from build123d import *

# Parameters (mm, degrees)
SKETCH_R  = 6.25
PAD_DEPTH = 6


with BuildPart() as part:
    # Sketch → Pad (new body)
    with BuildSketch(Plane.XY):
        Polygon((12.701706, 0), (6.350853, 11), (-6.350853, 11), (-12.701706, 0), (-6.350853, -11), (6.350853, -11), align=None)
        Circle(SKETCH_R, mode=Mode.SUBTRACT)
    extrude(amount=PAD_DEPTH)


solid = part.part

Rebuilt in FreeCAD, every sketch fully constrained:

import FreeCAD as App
import Part
import Sketcher

V = App.Vector
Q = App.Units.Quantity

doc = App.newDocument("Part")
params = doc.addObject("Spreadsheet::Sheet", "Params")
for row, (alias, value) in enumerate([
    ("sketch1_diameter", "12.5 mm"),
    ("pad1_length", "6 mm"),
], start=1):
    params.set(f"A{row}", alias)
    params.set(f"B{row}", "=" + value)
    params.setAlias(f"B{row}", alias)

body = doc.addObject("PartDesign::Body", "Body")

# Sketch on XY plane
sketch1 = body.newObject("Sketcher::SketchObject", "Sketch")
sketch1.AttachmentSupport = (doc.getObject("XY_Plane"), [""])
sketch1.MapMode = "FlatFace"
sketch1.addGeometry(Part.LineSegment(V(13, 0, 0), V(6, 11, 0)), False)
sketch1.addGeometry(Part.LineSegment(V(6, 11, 0), V(-6, 11, 0)), False)
sketch1.addGeometry(Part.LineSegment(V(-6, 11, 0), V(-13, 0, 0)), False)
sketch1.addGeometry(Part.LineSegment(V(-13, 0, 0), V(-6, -11, 0)), False)
sketch1.addGeometry(Part.LineSegment(V(-6, -11, 0), V(6, -11, 0)), False)
sketch1.addGeometry(Part.LineSegment(V(6, -11, 0), V(13, 0, 0)), False)
sketch1.addGeometry(Part.Circle(V(0, 0, 0), V(0, 0, 1), 6), False)
sketch1.addConstraint(Sketcher.Constraint("Coincident", 0, 2, 1, 1))
sketch1.addConstraint(Sketcher.Constraint("Coincident", 1, 2, 2, 1))
sketch1.addConstraint(Sketcher.Constraint("Coincident", 2, 2, 3, 1))
sketch1.addConstraint(Sketcher.Constraint("Coincident", 3, 2, 4, 1))
sketch1.addConstraint(Sketcher.Constraint("Coincident", 4, 2, 5, 1))
sketch1.addConstraint(Sketcher.Constraint("Coincident", 5, 2, 0, 1))
sketch1.addConstraint(Sketcher.Constraint("Horizontal", 1))
sketch1.addConstraint(Sketcher.Constraint("Horizontal", 4))
sketch1.addConstraint(Sketcher.Constraint("Coincident", 6, 3, -1, 1))
sketch1.addConstraint(Sketcher.Constraint("Symmetric", 0, 2, 3, 2, -1, 1))
sketch1.addConstraint(Sketcher.Constraint("Symmetric", 2, 2, 5, 2, -1, 1))
sketch1.addConstraint(Sketcher.Constraint("PointOnObject", 2, 2, -1))
sketch1.addConstraint(Sketcher.Constraint("Parallel", 2, 5))
sketch1.addConstraint(Sketcher.Constraint("Vertical", 1, 2, 3, 2))
sketch1.addConstraint(Sketcher.Constraint("Diameter", 6, Q("12.5 mm")))
sketch1.addConstraint(Sketcher.Constraint("Angle", 0, Q("120 deg")))
sketch1.addConstraint(Sketcher.Constraint("DistanceY", -1, 1, 0, 2, Q("11 mm")))
sketch1.addConstraint(Sketcher.Constraint("DistanceX", 1, 2, 1, 1, Q("12.701706 mm")))
sketch1.setExpression("Constraints[14]", "Params.sketch1_diameter")
pad1 = body.newObject("PartDesign::Pad", "Pad")
pad1.Profile = sketch1
pad1.setExpression("Length", "Params.pad1_length")

doc.recompute()
